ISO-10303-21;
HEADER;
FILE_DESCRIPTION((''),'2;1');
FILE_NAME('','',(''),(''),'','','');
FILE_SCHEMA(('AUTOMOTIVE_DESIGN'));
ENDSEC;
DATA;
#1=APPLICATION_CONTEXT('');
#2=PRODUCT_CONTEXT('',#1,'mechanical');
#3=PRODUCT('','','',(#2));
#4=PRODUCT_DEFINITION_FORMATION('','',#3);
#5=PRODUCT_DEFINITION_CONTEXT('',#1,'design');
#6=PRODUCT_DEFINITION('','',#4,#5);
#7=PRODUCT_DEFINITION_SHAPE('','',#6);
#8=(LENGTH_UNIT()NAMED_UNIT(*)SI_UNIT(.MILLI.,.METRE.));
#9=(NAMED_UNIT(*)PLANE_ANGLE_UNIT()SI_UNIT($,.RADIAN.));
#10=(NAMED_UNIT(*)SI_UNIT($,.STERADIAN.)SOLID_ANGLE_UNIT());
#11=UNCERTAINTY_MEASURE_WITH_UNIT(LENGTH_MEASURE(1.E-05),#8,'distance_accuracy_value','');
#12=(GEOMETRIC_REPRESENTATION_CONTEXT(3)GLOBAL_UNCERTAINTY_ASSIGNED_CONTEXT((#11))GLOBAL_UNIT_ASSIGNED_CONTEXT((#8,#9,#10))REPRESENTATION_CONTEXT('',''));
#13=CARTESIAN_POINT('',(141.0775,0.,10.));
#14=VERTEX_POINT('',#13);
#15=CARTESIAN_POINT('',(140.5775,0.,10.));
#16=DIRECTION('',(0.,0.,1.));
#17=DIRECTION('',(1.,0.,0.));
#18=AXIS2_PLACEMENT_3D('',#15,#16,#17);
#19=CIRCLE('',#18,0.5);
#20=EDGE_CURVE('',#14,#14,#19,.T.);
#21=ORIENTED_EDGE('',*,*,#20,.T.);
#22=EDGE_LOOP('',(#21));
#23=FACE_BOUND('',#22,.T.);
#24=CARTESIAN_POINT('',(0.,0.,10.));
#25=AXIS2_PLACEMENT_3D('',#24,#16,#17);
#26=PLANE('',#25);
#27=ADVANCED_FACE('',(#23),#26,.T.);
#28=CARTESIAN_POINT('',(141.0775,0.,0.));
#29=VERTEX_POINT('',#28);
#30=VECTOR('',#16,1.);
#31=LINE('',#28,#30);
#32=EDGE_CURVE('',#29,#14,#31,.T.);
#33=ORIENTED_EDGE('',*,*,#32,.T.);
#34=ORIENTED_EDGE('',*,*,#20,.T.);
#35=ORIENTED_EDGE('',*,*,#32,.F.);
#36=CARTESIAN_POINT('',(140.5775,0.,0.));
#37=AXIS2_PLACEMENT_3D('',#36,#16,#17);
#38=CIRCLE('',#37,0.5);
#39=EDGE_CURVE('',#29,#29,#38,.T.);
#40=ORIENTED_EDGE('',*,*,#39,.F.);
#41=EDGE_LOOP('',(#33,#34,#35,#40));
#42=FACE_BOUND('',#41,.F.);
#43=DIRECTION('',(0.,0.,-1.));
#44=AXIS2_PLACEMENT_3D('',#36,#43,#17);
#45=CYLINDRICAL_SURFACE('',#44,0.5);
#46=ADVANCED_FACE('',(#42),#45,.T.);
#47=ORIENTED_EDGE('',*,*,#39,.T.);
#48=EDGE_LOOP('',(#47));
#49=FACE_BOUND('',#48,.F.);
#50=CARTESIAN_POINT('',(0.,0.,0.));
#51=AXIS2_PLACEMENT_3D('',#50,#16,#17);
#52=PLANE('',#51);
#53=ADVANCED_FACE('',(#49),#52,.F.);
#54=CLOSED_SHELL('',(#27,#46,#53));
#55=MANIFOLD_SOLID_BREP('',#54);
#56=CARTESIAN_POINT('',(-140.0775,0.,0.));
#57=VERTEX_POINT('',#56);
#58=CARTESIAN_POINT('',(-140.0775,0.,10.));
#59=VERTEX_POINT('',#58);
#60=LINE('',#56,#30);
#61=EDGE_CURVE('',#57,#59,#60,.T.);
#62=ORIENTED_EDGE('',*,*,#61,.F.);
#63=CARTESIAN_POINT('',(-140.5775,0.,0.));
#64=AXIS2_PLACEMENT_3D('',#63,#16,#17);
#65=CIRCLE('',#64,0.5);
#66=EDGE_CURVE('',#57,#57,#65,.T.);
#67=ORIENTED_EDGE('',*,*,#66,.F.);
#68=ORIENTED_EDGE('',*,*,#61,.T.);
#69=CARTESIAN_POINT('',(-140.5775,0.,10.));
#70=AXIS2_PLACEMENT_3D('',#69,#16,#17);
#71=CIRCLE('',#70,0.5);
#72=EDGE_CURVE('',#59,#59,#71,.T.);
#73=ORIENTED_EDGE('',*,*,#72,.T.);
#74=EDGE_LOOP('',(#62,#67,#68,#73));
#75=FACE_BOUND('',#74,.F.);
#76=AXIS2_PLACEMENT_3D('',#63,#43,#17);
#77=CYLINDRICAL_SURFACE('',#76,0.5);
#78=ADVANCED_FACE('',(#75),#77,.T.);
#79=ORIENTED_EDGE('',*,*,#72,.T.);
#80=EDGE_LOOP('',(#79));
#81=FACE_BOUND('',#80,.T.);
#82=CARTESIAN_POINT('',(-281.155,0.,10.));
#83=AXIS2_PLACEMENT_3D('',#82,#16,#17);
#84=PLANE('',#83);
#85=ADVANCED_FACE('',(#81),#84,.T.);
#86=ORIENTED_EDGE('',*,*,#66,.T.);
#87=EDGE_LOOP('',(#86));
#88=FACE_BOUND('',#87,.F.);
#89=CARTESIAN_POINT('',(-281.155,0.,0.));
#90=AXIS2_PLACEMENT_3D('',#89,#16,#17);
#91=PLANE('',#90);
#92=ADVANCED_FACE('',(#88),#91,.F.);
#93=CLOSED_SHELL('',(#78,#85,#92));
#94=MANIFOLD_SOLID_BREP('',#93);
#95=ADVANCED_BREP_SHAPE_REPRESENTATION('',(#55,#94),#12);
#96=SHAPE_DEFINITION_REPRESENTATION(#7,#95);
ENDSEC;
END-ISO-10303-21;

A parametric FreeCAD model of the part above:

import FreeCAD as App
import Part
import Sketcher

V = App.Vector

doc = App.newDocument("Part")
params = doc.addObject("Spreadsheet::Sheet", "Params")
for row, (alias, value) in enumerate([
    ("sketch1_diameter", "1 mm"),
    ("pad1_length", "10 mm"),
    ("linearpattern_pitch", "281.155 mm"),
], start=1):
    params.set(f"A{row}", alias)
    params.set(f"B{row}", "=" + value)
    params.setAlias(f"B{row}", alias)

body = doc.addObject("PartDesign::Body", "Body")
body.AllowCompound = True

# Sketch on XY plane
sketch1 = body.newObject("Sketcher::SketchObject", "Sketch")
sketch1.AttachmentSupport = (doc.getObject("XY_Plane"), [""])
sketch1.MapMode = "FlatFace"
sketch1.addGeometry(Part.Circle(V(140.6, 0, 0), V(0, 0, 1), 0.5), False)
sketch1.addConstraint([
    Sketcher.Constraint("PointOnObject", 0, 3, -1),
    Sketcher.Constraint("Diameter", 0, 1.0),
    Sketcher.Constraint("DistanceX", -1, 1, 0, 3, 140.5775),
])
sketch1.setExpression("Constraints[1]", "Params.sketch1_diameter")
pad1 = body.newObject("PartDesign::Pad", "Pad")
pad1.Profile = sketch1
pad1.setExpression("Length", "Params.pad1_length")
doc.recompute()

linearpattern = body.newObject("PartDesign::LinearPattern", "LinearPattern")
linearpattern.Originals = [pad1]
linearpattern.Direction = (doc.getObject("X_Axis"), [""])
linearpattern.Mode = "offset"
linearpattern.setExpression("Offset", "Params.linearpattern_pitch")
linearpattern.Occurrences = 2
linearpattern.Reversed = True
body.Tip = linearpattern

doc.recompute()
